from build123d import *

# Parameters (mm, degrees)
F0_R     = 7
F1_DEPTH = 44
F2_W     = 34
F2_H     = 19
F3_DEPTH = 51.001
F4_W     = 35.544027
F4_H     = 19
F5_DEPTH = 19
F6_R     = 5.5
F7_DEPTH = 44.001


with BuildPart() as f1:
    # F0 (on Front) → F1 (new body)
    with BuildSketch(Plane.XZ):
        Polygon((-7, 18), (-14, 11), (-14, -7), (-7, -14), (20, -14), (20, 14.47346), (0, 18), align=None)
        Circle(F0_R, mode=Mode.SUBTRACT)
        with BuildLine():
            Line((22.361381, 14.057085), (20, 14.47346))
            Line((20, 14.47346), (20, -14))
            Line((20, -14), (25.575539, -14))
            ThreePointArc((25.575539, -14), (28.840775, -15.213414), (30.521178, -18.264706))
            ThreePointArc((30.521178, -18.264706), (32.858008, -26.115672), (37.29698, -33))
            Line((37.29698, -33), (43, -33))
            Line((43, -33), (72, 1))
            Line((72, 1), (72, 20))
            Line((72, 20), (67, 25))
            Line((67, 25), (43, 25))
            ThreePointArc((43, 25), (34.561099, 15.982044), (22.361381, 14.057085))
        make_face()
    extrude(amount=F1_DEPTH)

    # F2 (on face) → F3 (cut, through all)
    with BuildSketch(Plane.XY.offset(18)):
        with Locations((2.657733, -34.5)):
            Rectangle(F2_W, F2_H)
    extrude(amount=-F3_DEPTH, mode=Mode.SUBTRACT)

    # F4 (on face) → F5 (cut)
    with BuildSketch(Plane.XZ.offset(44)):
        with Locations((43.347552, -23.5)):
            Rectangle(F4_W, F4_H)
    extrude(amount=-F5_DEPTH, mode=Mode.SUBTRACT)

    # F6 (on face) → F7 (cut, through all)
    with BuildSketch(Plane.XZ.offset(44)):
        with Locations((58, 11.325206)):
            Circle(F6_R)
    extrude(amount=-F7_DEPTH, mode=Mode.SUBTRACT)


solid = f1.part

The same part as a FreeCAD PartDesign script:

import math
import FreeCAD as App
import Part
import Sketcher
from FreeCAD import Vector
Q = App.Units.Quantity

doc = App.newDocument("Part")
params = doc.addObject("Spreadsheet::Sheet", "Params")
for row, (alias, value) in enumerate([
    ("sketch1_diameter", "14 mm"),
    ("sketch1_radius", "5.000001 mm"),
    ("sketch1_radius2", "29 mm"),
    ("sketch1_radius3", "18.999999 mm"),
    ("sketch1_width", "24 mm"),
    ("pad1_length", "44 mm"),
    ("sketch2_width", "34 mm"),
    ("sketch2_height", "19 mm"),
    ("sketch3_height", "19 mm"),
    ("pocket2_length", "19 mm"),
    ("sketch4_diameter", "11 mm"),
], start=1):
    params.set(f"A{row}", alias)
    params.set(f"B{row}", "=" + value)
    params.setAlias(f"B{row}", alias)

body = doc.addObject("PartDesign::Body", "Body")

# Sketch on XZ plane
sketch1 = body.newObject("Sketcher::SketchObject", "Sketch")
sketch1.AttachmentSupport = (doc.getObject("XZ_Plane"), [""])
sketch1.MapMode = "FlatFace"
sketch1.addGeometry([
    Part.LineSegment(Vector(-7, 18, 0), Vector(-14, 11, 0)),  # 0
    Part.LineSegment(Vector(-14, 11, 0), Vector(-14, -7, 0)),  # 1
    Part.LineSegment(Vector(-14, -7, 0), Vector(-7, -14, 0)),  # 2
    Part.LineSegment(Vector(-7, -14, 0), Vector(25.575539, -14, 0)),  # 3
    Part.ArcOfCircle(Part.Circle(Vector(25.575539, -19.000001, 0), Vector(0, 0, 1), 5.000001), math.radians(8.456524), math.radians(89.999997)),  # 4
    Part.ArcOfCircle(Part.Circle(Vector(59.205883, -14, 0), Vector(0, 0, 1), 29), math.radians(-171.543481), math.radians(-139.067277)),  # 5
    Part.LineSegment(Vector(37.29698, -33, 0), Vector(43, -33, 0)),  # 6
    Part.LineSegment(Vector(43, -33, 0), Vector(72, 1, 0)),  # 7
    Part.LineSegment(Vector(72, 1, 0), Vector(72, 20, 0)),  # 8
    Part.LineSegment(Vector(72, 20, 0), Vector(67, 25, 0)),  # 9
    Part.LineSegment(Vector(67, 25, 0), Vector(43, 25, 0)),  # 10
    Part.ArcOfCircle(Part.Circle(Vector(25.660696, 32.768432, 0), Vector(0, 0, 1), 18.999999), math.radians(-100), math.radians(-24.133546)),  # 11
    Part.LineSegment(Vector(22.361381, 14.057085, 0), Vector(20, 14.47346, 0)),  # 12
    Part.LineSegment(Vector(20, 14.47346, 0), Vector(0, 18, 0)),  # 13
    Part.LineSegment(Vector(0, 18, 0), Vector(-7, 18, 0)),  # 14
    Part.Circle(Vector(0, 0, 0), Vector(0, 0, 1), 7),  # 15
], False)
sketch1.addConstraint([
    Sketcher.Constraint("Coincident", 0, 2, 1, 1),
    Sketcher.Constraint("Coincident", 1, 2, 2, 1),
    Sketcher.Constraint("Coincident", 2, 2, 3, 1),
    Sketcher.Constraint("Tangent", 3, 2, 4, 2),
    Sketcher.Constraint("Tangent", 4, 1, 5, 1),
    Sketcher.Constraint("Coincident", 5, 2, 6, 1),
    Sketcher.Constraint("Coincident", 6, 2, 7, 1),
    Sketcher.Constraint("Coincident", 7, 2, 8, 1),
    Sketcher.Constraint("Coincident", 8, 2, 9, 1),
    Sketcher.Constraint("Coincident", 9, 2, 10, 1),
    Sketcher.Constraint("Coincident", 10, 2, 11, 2),
    Sketcher.Constraint("Tangent", 11, 1, 12, 1),
    Sketcher.Constraint("Coincident", 12, 2, 13, 1),
    Sketcher.Constraint("Coincident", 13, 2, 14, 1),
    Sketcher.Constraint("Coincident", 14, 2, 0, 1),
    Sketcher.Constraint("Vertical", 1),
    Sketcher.Constraint("Horizontal", 3),
    Sketcher.Constraint("Horizontal", 6),
    Sketcher.Constraint("Vertical", 8),
    Sketcher.Constraint("Horizontal", 10),
    Sketcher.Constraint("Horizontal", 14),
    Sketcher.Constraint("Coincident", 15, 3, -1, 1),
    Sketcher.Constraint("PointOnObject", 13, 2, -2),
    Sketcher.Constraint("Perpendicular", 0, 2),
    Sketcher.Constraint("Parallel", 2, 9),
    Sketcher.Constraint("Parallel", 12, 13),
    Sketcher.Constraint("Horizontal", 5, 3, 2, 2),
    Sketcher.Constraint("Vertical", 6, 2, 10, 2),
    Sketcher.Constraint("Vertical", 2, 2, 14, 2),
    Sketcher.Constraint("Equal", 0, 2),
    Sketcher.Constraint("Diameter", 15, Q("14 mm")),
    Sketcher.Constraint("Radius", 4, Q("5.000001 mm")),
    Sketcher.Constraint("Radius", 5, Q("29 mm")),
    Sketcher.Constraint("Radius", 11, Q("18.999999 mm")),
    Sketcher.Constraint("DistanceX", 10, 2, 10, 1, Q("24 mm")),
    Sketcher.Constraint("DistanceX", 14, 2, 14, 1, Q("7 mm")),
    Sketcher.Constraint("DistanceY", 1, 2, 1, 1, Q("18 mm")),
    Sketcher.Constraint("DistanceY", 8, 1, 8, 2, Q("19 mm")),
    Sketcher.Constraint("Angle", 12, Q("170.000004 deg")),
    Sketcher.Constraint("DistanceY", 4, 3, -1, 1, Q("19.000001 mm")),
    Sketcher.Constraint("DistanceX", 0, 2, -1, 1, Q("14 mm")),
    Sketcher.Constraint("DistanceY", 5, 2, -1, 1, Q("33 mm")),
    Sketcher.Constraint("DistanceX", -1, 1, 6, 2, Q("43 mm")),
    Sketcher.Constraint("DistanceX", -1, 1, 7, 2, Q("72 mm")),
    Sketcher.Constraint("DistanceY", -1, 1, 7, 2, Q("1 mm")),
    Sketcher.Constraint("DistanceX", -1, 1, 12, 2, Q("20 mm")),
    Sketcher.Constraint("DistanceX", 3, 1, 3, 2, Q("32.575539 mm")),
])
sketch1.setExpression("Constraints[30]", "Params.sketch1_diameter")
sketch1.setExpression("Constraints[31]", "Params.sketch1_radius")
sketch1.setExpression("Constraints[32]", "Params.sketch1_radius2")
sketch1.setExpression("Constraints[33]", "Params.sketch1_radius3")
sketch1.setExpression("Constraints[34]", "Params.sketch1_width")
pad1 = body.newObject("PartDesign::Pad", "Pad")
pad1.Profile = sketch1
pad1.setExpression("Length", "Params.pad1_length")

# Sketch on XY plane
sketch2 = body.newObject("Sketcher::SketchObject", "Sketch001")
sketch2.AttachmentSupport = (doc.getObject("XY_Plane"), [""])
sketch2.MapMode = "FlatFace"
sketch2.AttachmentOffset = App.Placement(Vector(0, 0, 18), App.Rotation())
sketch2.addGeometry([
    Part.LineSegment(Vector(-14.342267, -25, 0), Vector(-14.342267, -44, 0)),
    Part.LineSegment(Vector(-14.342267, -44, 0), Vector(19.657733, -44, 0)),
    Part.LineSegment(Vector(19.657733, -44, 0), Vector(19.657733, -25, 0)),
    Part.LineSegment(Vector(19.657733, -25, 0), Vector(-14.342267, -25, 0)),
], False)
sketch2.addConstraint([
    Sketcher.Constraint("Coincident", 0, 2, 1, 1),
    Sketcher.Constraint("Coincident", 1, 2, 2, 1),
    Sketcher.Constraint("Coincident", 2, 2, 3, 1),
    Sketcher.Constraint("Coincident", 3, 2, 0, 1),
    Sketcher.Constraint("Vertical", 0),
    Sketcher.Constraint("Horizontal", 1),
    Sketcher.Constraint("Vertical", 2),
    Sketcher.Constraint("Horizontal", 3),
    Sketcher.Constraint("DistanceX", 1, 1, 1, 2, Q("34 mm")),
    Sketcher.Constraint("DistanceY", 0, 2, 0, 1, Q("19 mm")),
    Sketcher.Constraint("DistanceY", 0, 2, -1, 1, Q("44 mm")),
    Sketcher.Constraint("DistanceX", 0, 2, -1, 1, Q("14.342267 mm")),
])
sketch2.setExpression("Constraints[8]", "Params.sketch2_width")
sketch2.setExpression("Constraints[9]", "Params.sketch2_height")
pocket1 = body.newObject("PartDesign::Pocket", "Pocket")
pocket1.Profile = sketch2
pocket1.Type = "ThroughAll"

# Sketch on XZ plane
sketch3 = body.newObject("Sketcher::SketchObject", "Sketch002")
sketch3.AttachmentSupport = (doc.getObject("XZ_Plane"), [""])
sketch3.MapMode = "FlatFace"
sketch3.AttachmentOffset = App.Placement(Vector(0, 0, 44), App.Rotation())
sketch3.addGeometry([
    Part.LineSegment(Vector(25.575539, -14, 0), Vector(25.575539, -33, 0)),
    Part.LineSegment(Vector(25.575539, -33, 0), Vector(61.119566, -33, 0)),
    Part.LineSegment(Vector(61.119566, -33, 0), Vector(61.119566, -14, 0)),
    Part.LineSegment(Vector(61.119566, -14, 0), Vector(25.575539, -14, 0)),
], False)
sketch3.addConstraint([
    Sketcher.Constraint("Coincident", 0, 2, 1, 1),
    Sketcher.Constraint("Coincident", 1, 2, 2, 1),
    Sketcher.Constraint("Coincident", 2, 2, 3, 1),
    Sketcher.Constraint("Coincident", 3, 2, 0, 1),
    Sketcher.Constraint("Vertical", 0),
    Sketcher.Constraint("Horizontal", 1),
    Sketcher.Constraint("Vertical", 2),
    Sketcher.Constraint("Horizontal", 3),
    Sketcher.Constraint("DistanceY", 0, 2, 0, 1, Q("19 mm")),
    Sketcher.Constraint("DistanceY", 0, 2, -1, 1, Q("33 mm")),
    Sketcher.Constraint("DistanceX", 1, 1, 1, 2, Q("35.544027 mm")),
    Sketcher.Constraint("DistanceX", -1, 1, 0, 2, Q("25.575539 mm")),
])
sketch3.setExpression("Constraints[8]", "Params.sketch3_height")
pocket2 = body.newObject("PartDesign::Pocket", "Pocket001")
pocket2.Profile = sketch3
pocket2.setExpression("Length", "Params.pocket2_length")

# Sketch on XZ plane
sketch4 = body.newObject("Sketcher::SketchObject", "Sketch003")
sketch4.AttachmentSupport = (doc.getObject("XZ_Plane"), [""])
sketch4.MapMode = "FlatFace"
sketch4.AttachmentOffset = App.Placement(Vector(0, 0, 44), App.Rotation())
sketch4.addGeometry(Part.Circle(Vector(58, 11.325206, 0), Vector(0, 0, 1), 5.5), False)
sketch4.addConstraint([
    Sketcher.Constraint("Diameter", 0, Q("11 mm")),
    Sketcher.Constraint("DistanceX", -1, 1, 0, 3, Q("58 mm")),
    Sketcher.Constraint("DistanceY", -1, 1, 0, 3, Q("11.325206 mm")),
])
sketch4.setExpression("Constraints[0]", "Params.sketch4_diameter")
pocket3 = body.newObject("PartDesign::Pocket", "Pocket002")
pocket3.Profile = sketch4
pocket3.Type = "ThroughAll"

doc.recompute()
